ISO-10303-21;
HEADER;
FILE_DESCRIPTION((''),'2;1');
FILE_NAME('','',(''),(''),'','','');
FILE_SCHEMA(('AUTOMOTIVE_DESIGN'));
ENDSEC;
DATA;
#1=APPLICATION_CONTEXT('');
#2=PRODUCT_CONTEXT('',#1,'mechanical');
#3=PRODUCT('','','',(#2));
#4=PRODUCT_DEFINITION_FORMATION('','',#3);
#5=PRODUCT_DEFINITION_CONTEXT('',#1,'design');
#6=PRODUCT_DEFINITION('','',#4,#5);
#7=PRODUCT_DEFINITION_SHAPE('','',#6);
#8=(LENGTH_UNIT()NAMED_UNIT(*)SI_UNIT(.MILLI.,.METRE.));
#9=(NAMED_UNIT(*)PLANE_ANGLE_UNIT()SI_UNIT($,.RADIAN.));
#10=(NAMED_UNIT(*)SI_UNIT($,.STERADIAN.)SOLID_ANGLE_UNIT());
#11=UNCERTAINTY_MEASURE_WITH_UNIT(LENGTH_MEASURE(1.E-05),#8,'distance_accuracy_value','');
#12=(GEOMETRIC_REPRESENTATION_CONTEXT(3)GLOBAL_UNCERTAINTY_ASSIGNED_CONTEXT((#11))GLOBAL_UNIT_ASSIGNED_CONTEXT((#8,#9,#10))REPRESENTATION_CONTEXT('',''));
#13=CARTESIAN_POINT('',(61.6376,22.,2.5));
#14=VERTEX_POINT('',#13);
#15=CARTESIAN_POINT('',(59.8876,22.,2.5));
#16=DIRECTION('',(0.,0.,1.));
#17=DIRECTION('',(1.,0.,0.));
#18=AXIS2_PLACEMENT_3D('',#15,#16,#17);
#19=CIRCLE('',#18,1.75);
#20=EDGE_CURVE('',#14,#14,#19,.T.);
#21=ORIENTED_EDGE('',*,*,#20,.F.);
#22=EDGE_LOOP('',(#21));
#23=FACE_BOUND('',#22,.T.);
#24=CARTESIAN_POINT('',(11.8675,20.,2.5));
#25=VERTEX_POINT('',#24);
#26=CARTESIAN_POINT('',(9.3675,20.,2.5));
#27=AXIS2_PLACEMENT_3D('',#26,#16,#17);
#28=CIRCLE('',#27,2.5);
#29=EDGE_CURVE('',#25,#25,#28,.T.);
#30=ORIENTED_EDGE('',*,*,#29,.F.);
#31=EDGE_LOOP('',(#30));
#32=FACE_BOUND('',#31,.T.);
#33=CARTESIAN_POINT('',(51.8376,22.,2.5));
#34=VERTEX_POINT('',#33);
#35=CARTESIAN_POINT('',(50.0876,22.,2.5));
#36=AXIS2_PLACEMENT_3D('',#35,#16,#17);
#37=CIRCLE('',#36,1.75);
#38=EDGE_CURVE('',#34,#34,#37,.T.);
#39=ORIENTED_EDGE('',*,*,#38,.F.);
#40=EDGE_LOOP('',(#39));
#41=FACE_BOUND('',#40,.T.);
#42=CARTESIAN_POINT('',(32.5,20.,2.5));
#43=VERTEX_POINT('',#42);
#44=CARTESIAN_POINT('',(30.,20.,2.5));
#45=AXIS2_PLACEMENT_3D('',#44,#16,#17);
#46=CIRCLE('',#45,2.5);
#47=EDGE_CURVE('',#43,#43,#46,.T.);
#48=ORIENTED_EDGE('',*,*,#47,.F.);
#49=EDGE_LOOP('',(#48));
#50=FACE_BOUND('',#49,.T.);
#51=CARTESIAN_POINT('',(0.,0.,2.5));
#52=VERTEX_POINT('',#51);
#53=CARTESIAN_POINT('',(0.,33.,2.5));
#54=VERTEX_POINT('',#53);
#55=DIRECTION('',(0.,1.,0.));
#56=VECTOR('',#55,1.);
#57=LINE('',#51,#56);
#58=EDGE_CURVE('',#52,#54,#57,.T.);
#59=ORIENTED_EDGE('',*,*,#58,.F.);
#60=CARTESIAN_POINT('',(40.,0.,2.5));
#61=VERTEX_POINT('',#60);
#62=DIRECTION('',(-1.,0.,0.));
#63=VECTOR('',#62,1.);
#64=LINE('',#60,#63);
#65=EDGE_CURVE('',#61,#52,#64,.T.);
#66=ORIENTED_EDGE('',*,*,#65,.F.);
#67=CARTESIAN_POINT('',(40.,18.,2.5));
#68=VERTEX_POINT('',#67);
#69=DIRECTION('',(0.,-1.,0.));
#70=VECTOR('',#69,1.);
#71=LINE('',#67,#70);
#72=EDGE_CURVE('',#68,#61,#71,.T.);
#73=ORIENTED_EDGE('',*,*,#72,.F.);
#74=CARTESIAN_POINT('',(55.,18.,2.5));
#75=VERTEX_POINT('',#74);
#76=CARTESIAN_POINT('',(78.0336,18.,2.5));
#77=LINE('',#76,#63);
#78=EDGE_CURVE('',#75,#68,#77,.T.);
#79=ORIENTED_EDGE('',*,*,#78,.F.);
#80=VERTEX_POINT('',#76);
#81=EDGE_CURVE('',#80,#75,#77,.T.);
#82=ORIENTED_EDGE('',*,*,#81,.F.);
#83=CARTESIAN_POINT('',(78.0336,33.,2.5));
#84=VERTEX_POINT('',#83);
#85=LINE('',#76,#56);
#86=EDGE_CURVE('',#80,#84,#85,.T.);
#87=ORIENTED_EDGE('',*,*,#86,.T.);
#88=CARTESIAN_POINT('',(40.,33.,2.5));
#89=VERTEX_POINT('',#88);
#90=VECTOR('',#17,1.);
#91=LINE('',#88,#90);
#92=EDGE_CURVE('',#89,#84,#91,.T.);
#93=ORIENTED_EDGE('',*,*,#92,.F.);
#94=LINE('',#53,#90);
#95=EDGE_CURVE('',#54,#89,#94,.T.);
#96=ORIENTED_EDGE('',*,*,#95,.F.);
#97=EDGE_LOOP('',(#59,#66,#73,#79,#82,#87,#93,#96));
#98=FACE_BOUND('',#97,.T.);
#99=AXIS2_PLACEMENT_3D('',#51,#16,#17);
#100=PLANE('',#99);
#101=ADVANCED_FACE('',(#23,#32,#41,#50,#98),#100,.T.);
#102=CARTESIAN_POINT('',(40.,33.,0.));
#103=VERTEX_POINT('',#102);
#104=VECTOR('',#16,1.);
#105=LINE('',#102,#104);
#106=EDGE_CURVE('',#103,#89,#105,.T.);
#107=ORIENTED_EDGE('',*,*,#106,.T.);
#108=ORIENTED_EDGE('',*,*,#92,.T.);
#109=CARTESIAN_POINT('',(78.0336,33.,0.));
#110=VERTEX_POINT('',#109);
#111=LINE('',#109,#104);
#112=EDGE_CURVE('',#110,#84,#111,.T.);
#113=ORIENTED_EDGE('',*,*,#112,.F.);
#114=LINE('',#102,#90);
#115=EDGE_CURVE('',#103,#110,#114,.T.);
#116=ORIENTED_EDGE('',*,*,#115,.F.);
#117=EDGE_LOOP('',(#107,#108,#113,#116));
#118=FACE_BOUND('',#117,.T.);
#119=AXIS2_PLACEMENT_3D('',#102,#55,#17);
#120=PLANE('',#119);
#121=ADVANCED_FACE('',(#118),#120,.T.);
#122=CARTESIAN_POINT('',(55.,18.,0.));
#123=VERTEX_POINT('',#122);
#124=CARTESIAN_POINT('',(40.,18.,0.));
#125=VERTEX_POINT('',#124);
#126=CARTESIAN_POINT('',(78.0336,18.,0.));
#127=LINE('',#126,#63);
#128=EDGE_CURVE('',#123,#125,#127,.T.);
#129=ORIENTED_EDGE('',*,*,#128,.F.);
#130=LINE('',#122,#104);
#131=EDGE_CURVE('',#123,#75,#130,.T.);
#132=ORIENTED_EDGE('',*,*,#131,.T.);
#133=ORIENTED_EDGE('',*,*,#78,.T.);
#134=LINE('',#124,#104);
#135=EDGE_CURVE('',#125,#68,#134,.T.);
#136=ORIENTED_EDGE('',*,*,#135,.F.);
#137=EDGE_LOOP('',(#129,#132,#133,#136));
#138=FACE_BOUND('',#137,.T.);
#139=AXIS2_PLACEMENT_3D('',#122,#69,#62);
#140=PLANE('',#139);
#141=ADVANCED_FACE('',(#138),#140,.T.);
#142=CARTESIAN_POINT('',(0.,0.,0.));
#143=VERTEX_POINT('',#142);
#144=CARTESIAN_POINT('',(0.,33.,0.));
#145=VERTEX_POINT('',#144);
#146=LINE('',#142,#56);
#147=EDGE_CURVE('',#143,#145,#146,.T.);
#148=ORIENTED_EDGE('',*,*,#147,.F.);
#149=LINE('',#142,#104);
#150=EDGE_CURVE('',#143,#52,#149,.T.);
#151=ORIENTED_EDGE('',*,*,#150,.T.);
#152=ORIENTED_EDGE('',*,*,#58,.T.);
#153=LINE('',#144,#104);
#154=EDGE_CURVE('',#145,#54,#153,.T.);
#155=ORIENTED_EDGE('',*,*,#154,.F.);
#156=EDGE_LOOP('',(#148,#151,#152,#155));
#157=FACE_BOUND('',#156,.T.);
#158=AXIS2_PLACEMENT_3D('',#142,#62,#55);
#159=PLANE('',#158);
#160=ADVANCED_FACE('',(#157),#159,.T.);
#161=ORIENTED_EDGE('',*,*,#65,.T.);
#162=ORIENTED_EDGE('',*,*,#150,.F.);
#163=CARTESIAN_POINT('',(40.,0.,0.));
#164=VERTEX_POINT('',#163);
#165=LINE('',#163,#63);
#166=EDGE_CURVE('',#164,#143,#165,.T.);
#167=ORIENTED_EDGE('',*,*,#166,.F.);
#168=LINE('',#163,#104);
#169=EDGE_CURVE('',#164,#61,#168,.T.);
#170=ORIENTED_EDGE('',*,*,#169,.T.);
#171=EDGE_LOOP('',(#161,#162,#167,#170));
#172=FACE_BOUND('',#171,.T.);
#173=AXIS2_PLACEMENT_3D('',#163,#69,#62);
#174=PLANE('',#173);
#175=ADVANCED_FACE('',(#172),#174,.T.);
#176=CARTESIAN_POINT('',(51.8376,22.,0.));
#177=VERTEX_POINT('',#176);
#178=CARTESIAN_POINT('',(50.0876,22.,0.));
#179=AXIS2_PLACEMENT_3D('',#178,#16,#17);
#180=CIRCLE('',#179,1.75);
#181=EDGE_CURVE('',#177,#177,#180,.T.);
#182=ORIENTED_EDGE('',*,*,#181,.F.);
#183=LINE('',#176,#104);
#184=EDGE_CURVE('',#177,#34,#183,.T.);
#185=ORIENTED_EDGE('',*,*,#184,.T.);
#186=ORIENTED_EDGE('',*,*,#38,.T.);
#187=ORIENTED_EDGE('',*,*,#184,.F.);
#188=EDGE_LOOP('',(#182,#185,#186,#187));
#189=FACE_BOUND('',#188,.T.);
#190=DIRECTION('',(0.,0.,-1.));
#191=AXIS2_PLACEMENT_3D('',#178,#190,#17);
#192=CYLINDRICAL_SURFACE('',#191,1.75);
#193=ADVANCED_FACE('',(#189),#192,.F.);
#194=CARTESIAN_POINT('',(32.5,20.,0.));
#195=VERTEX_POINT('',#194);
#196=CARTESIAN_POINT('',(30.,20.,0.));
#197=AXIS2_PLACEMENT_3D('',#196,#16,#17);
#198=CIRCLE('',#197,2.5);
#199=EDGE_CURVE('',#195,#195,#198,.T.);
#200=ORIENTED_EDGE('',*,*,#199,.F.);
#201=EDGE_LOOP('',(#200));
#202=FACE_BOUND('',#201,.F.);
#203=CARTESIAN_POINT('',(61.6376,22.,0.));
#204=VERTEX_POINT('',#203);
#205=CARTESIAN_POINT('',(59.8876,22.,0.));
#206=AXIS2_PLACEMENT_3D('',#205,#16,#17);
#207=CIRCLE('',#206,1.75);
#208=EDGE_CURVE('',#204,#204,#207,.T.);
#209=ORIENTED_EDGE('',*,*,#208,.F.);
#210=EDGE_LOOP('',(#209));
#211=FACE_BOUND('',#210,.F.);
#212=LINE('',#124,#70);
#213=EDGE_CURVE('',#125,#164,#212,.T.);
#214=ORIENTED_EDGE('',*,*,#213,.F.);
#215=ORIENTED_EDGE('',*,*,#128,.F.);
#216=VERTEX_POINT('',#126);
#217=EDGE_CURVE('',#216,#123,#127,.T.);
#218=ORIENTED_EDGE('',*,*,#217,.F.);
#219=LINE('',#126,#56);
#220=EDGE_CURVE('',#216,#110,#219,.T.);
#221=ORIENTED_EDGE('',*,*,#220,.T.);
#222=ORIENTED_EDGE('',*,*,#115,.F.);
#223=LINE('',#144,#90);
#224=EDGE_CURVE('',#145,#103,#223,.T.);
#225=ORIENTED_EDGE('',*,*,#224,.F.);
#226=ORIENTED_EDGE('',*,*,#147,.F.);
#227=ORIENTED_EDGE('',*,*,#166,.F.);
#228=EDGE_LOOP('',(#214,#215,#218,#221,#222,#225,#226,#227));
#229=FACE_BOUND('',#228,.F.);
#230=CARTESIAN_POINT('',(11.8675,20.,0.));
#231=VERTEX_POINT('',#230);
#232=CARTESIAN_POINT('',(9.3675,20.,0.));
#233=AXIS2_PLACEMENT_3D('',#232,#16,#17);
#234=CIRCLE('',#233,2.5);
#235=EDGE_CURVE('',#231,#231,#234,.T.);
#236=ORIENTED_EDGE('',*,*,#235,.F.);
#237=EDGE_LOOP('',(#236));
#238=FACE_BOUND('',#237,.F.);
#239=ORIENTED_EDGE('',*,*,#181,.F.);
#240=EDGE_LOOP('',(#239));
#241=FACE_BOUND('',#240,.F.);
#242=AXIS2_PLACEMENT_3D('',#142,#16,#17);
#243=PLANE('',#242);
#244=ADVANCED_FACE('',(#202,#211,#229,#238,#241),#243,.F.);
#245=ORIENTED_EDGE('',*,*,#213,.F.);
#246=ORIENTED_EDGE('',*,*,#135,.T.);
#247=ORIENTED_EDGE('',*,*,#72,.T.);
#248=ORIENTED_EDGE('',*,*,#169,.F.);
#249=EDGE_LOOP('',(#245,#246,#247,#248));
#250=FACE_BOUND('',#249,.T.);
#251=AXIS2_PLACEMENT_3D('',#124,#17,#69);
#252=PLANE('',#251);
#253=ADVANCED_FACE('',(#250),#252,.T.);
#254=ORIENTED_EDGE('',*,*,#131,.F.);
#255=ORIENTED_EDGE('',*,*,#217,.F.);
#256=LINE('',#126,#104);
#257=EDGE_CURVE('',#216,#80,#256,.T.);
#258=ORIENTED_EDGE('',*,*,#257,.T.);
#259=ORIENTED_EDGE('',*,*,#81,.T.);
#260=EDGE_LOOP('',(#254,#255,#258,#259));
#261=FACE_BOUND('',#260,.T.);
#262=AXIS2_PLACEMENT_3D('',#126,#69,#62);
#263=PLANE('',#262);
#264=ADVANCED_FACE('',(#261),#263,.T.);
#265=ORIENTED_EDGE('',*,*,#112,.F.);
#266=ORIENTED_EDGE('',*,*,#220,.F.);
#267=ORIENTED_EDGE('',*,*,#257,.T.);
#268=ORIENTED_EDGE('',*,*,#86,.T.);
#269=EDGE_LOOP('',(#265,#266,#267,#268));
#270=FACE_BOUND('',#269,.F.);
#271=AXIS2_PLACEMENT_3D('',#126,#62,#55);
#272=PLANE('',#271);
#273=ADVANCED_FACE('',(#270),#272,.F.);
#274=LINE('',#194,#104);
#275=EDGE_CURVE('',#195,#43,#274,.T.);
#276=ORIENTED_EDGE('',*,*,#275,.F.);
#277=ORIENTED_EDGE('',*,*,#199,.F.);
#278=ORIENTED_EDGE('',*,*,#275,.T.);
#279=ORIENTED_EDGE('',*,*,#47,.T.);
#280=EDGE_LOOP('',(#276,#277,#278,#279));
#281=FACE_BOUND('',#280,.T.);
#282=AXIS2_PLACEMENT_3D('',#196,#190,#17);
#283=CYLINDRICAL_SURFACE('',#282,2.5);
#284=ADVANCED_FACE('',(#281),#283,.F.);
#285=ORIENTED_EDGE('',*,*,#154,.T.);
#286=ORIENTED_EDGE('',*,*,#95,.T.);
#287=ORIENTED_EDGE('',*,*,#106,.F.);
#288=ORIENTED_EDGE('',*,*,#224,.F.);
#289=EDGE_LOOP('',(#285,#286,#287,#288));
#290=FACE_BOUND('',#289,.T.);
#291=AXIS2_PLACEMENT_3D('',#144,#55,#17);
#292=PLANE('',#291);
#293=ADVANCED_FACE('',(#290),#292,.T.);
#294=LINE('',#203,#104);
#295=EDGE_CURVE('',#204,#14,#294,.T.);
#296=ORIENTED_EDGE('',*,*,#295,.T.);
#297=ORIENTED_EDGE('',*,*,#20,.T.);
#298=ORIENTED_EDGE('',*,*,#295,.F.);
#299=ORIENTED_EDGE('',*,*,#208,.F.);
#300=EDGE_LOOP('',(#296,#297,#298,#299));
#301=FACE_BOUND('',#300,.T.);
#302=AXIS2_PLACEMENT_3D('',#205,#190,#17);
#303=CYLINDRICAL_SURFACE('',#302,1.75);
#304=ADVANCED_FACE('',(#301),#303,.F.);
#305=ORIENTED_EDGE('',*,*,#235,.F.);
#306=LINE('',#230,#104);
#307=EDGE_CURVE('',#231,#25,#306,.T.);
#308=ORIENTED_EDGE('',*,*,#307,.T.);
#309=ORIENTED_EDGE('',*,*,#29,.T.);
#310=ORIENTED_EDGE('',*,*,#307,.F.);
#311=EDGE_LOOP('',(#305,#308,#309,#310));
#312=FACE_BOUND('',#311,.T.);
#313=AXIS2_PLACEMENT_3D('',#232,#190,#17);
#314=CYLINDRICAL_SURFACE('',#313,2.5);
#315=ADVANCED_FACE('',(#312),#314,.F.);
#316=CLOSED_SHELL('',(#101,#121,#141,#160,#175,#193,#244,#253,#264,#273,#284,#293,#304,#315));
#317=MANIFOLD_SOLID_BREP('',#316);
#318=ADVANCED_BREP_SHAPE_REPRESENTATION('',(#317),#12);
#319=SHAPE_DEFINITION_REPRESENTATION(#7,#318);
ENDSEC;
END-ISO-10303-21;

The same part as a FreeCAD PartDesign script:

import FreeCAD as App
import Part
import Sketcher

V = App.Vector


def add_polygon(sketch, points):
    """Adds a closed chain of lines whose ends are joined by coincident constraints."""
    first, n = sketch.GeometryCount, len(points)
    for a, b in zip(points, points[1:] + points[:1]):
        sketch.addGeometry(Part.LineSegment(App.Vector(*a, 0), App.Vector(*b, 0)), False)
    for i in range(n):
        sketch.addConstraint(Sketcher.Constraint("Coincident", first + i, 2, first + (i + 1) % n, 1))

doc = App.newDocument("Part")
body = doc.addObject("PartDesign::Body", "Body")

sketch1 = body.newObject("Sketcher::SketchObject", "Sketch")
sketch1.AttachmentSupport = (doc.getObject("XY_Plane"), [""])
sketch1.MapMode = "FlatFace"
add_polygon(sketch1, [(0, 33), (0, 0), (40, 0), (40, 18), (78, 18), (78, 33)])
sketch1.addGeometry(Part.Circle(V(9.4, 20, 0), V(0, 0, 1), 2.5), False)
sketch1.addGeometry(Part.Circle(V(30, 20, 0), V(0, 0, 1), 2.5), False)
sketch1.addGeometry(Part.Circle(V(50.1, 22, 0), V(0, 0, 1), 1.8), False)
sketch1.addGeometry(Part.Circle(V(59.9, 22, 0), V(0, 0, 1), 1.8), False)
sketch1.addConstraint(Sketcher.Constraint("Vertical", 0))
sketch1.addConstraint(Sketcher.Constraint("Horizontal", 1))
sketch1.addConstraint(Sketcher.Constraint("Vertical", 2))
sketch1.addConstraint(Sketcher.Constraint("Horizontal", 3))
sketch1.addConstraint(Sketcher.Constraint("Vertical", 4))
sketch1.addConstraint(Sketcher.Constraint("Horizontal", 5))
sketch1.addConstraint(Sketcher.Constraint("Coincident", 0, 2, -1, 1))
sketch1.addConstraint(Sketcher.Constraint("Equal", 6, 7))
sketch1.addConstraint(Sketcher.Constraint("Equal", 8, 9))
sketch1.addConstraint(Sketcher.Constraint("Horizontal", 6, 3, 7, 3))
sketch1.addConstraint(Sketcher.Constraint("Horizontal", 8, 3, 9, 3))
sketch1.addConstraint(Sketcher.Constraint("Diameter", 6, 5.0))
sketch1.addConstraint(Sketcher.Constraint("Diameter", 8, 3.5))
sketch1.addConstraint(Sketcher.Constraint("DistanceX", 1, 1, 1, 2, 40.0))
sketch1.addConstraint(Sketcher.Constraint("DistanceY", 0, 2, 0, 1, 33.0))
sketch1.addConstraint(Sketcher.Constraint("DistanceY", 4, 1, 4, 2, 15.0))
sketch1.addConstraint(Sketcher.Constraint("DistanceY", -1, 1, 6, 3, 20.0))
sketch1.addConstraint(Sketcher.Constraint("DistanceX", 7, 3, 1, 2, 10.0))
sketch1.addConstraint(Sketcher.Constraint("DistanceY", 2, 2, 8, 3, 4.0))
sketch1.addConstraint(Sketcher.Constraint("DistanceX", 8, 3, 9, 3, 9.8))
sketch1.addConstraint(Sketcher.Constraint("DistanceX", 6, 3, 8, 3, 40.72))
sketch1.addConstraint(Sketcher.Constraint("DistanceX", 3, 1, 3, 2, 38.0336))
sketch1.addConstraint(Sketcher.Constraint("DistanceX", 9, 3, 3, 2, 18.146))
pad1 = body.newObject("PartDesign::Pad", "Pad")
pad1.Profile = sketch1
pad1.Length = 2.5

doc.recompute()
